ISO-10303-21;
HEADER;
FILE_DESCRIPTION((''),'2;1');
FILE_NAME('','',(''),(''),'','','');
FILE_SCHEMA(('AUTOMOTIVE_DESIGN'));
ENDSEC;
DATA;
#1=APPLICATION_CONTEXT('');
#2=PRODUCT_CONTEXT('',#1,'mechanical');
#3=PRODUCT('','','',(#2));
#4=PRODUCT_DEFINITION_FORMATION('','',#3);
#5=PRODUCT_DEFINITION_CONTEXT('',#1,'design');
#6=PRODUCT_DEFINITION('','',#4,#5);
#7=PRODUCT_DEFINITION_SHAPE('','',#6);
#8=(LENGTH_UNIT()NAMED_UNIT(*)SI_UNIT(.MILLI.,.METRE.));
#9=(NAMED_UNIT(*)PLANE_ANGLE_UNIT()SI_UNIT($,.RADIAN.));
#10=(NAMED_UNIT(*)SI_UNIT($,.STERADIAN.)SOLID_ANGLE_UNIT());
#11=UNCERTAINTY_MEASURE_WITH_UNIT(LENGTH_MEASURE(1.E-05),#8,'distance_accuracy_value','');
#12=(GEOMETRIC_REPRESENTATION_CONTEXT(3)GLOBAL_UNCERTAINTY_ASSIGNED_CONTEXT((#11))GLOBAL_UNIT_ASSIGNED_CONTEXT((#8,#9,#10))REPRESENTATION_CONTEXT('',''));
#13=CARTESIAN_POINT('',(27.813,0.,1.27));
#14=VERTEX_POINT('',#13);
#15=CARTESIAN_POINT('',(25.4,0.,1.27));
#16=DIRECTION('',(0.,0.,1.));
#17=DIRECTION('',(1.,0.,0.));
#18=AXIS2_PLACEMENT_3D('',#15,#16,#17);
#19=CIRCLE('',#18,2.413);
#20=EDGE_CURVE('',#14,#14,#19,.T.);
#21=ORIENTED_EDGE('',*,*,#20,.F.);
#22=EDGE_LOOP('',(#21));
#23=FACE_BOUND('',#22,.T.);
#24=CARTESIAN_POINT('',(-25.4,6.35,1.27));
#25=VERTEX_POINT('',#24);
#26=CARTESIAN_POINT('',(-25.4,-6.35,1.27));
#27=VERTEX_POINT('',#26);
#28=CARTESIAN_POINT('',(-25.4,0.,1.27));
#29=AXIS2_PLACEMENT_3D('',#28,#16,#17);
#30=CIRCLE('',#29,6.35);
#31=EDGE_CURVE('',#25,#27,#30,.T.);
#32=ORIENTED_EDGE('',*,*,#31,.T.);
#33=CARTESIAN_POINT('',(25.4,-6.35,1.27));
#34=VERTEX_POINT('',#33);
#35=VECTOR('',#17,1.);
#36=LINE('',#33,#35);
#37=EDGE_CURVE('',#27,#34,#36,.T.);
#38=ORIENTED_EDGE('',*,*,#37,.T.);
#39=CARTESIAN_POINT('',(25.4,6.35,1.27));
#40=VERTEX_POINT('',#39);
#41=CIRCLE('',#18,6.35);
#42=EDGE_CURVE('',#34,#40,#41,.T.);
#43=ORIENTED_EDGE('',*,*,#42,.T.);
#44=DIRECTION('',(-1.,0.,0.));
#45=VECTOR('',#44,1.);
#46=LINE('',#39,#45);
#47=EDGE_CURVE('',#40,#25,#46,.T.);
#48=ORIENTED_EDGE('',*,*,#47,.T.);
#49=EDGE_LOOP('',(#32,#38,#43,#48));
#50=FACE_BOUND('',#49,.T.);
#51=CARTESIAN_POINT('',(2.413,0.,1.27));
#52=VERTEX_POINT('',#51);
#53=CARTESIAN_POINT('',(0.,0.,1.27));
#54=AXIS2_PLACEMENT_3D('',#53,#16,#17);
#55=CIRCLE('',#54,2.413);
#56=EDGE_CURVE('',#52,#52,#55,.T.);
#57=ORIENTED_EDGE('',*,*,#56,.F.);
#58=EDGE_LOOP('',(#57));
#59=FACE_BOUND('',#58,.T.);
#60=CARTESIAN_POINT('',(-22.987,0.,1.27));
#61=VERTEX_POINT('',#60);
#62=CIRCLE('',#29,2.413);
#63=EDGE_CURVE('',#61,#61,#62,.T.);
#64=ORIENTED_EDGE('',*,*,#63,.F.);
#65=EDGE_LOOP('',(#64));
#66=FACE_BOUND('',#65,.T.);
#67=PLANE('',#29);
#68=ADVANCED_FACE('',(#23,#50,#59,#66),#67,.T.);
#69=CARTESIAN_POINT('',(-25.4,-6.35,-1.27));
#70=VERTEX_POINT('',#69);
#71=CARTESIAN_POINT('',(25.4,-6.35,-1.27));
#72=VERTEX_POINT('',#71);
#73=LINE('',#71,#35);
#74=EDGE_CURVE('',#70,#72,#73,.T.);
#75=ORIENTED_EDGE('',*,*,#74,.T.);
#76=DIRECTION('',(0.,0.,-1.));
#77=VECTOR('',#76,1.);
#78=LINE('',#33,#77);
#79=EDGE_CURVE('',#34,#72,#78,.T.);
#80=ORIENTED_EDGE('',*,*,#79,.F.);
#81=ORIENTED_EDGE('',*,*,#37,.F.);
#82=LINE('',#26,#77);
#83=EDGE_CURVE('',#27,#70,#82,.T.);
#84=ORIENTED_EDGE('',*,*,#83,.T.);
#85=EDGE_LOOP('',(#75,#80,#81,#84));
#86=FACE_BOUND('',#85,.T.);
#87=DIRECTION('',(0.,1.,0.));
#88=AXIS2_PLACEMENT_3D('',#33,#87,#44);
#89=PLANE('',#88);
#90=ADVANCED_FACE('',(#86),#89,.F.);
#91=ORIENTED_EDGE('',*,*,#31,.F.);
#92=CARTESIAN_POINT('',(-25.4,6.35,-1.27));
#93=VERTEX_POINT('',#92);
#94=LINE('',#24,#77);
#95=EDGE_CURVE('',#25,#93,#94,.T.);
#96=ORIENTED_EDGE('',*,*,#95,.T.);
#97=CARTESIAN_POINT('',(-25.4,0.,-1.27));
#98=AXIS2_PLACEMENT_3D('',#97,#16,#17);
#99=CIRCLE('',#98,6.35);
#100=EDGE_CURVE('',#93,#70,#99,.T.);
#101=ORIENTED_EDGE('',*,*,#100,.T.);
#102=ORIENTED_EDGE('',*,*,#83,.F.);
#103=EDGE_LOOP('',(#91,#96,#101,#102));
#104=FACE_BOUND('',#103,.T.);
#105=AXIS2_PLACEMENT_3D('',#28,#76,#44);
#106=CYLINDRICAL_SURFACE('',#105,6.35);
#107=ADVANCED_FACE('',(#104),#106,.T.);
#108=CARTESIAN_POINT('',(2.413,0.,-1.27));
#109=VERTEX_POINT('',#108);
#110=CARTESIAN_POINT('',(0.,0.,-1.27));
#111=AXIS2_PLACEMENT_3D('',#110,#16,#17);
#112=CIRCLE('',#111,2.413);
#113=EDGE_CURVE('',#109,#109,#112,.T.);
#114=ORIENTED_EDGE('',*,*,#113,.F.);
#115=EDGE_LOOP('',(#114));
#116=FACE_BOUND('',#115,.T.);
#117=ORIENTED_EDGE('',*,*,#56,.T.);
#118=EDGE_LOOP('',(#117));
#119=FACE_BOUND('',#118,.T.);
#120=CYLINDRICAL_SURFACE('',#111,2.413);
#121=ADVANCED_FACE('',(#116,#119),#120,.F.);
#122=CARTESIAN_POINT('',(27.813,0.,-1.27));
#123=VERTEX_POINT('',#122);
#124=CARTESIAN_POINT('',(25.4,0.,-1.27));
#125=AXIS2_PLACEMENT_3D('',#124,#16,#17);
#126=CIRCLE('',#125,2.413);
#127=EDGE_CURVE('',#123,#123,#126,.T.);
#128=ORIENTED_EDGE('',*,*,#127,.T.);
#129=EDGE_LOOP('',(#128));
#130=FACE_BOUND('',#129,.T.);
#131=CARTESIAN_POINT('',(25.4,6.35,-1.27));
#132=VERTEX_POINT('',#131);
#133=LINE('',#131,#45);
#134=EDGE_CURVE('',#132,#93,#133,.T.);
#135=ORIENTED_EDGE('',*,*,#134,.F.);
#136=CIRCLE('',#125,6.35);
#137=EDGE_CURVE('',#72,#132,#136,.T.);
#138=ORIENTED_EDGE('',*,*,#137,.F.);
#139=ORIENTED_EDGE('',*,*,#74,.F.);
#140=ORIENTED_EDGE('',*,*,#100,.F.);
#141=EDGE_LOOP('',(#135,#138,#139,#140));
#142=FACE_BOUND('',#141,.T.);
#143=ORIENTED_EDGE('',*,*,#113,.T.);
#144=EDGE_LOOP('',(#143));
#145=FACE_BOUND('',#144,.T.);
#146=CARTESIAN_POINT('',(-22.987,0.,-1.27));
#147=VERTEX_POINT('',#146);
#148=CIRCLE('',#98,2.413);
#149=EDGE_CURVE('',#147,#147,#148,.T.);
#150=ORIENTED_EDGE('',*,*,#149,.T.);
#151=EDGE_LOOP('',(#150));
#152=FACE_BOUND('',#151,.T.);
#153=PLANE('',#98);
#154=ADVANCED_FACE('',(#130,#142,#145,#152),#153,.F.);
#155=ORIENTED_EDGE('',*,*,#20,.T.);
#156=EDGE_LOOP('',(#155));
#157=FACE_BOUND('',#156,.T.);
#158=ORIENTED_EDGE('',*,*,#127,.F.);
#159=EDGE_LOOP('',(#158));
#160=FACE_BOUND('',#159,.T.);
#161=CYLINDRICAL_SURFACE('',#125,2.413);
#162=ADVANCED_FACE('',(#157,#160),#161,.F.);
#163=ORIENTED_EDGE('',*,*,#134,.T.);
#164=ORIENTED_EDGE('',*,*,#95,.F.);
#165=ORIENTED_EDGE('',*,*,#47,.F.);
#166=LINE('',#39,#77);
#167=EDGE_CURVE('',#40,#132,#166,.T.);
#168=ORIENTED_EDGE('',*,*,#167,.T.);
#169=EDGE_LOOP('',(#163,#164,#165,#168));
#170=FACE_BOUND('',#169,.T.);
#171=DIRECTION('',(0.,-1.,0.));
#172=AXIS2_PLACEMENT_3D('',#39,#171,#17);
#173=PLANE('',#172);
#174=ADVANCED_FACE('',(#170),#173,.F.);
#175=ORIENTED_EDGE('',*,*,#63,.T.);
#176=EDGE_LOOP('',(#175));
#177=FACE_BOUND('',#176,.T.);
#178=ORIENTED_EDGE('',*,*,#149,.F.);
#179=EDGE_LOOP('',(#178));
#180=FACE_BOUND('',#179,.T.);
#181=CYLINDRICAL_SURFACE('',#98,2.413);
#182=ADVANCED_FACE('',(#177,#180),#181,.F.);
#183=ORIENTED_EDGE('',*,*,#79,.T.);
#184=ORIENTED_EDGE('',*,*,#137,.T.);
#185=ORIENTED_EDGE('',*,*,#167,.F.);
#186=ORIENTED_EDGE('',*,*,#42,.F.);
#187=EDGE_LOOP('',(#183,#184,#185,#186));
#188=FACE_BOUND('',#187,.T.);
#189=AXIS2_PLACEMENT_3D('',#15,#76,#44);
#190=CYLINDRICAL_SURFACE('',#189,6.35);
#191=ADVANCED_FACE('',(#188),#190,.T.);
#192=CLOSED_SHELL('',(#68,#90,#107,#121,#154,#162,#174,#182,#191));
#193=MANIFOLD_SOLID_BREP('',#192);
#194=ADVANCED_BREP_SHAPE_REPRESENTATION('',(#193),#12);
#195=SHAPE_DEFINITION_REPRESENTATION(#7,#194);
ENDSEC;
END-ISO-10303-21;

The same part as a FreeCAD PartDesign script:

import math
import FreeCAD as App
import Part
import Sketcher

V = App.Vector
Q = App.Units.Quantity

doc = App.newDocument("Part")
body = doc.addObject("PartDesign::Body", "Body")

sketch1 = body.newObject("Sketcher::SketchObject", "Sketch")
sketch1.AttachmentSupport = (doc.getObject("XY_Plane"), [""])
sketch1.MapMode = "FlatFace"
sketch1.addGeometry([
    Part.LineSegment(V(-25, -6, 0), V(25, -6, 0)),
    Part.ArcOfCircle(Part.Circle(V(25, 0, 0), V(0, 0, 1), 6), math.radians(-90), math.radians(90)),
    Part.LineSegment(V(25, 6, 0), V(-25, 6, 0)),
    Part.ArcOfCircle(Part.Circle(V(-25, 0, 0), V(0, 0, 1), 6), math.radians(90), math.radians(270)),
], False)
sketch1.addConstraint([
    Sketcher.Constraint("Tangent", 0, 2, 1, 1),
    Sketcher.Constraint("Tangent", 1, 2, 2, 1),
    Sketcher.Constraint("Tangent", 2, 2, 3, 1),
    Sketcher.Constraint("Tangent", 3, 2, 0, 1),
    Sketcher.Constraint("Horizontal", 0),
    Sketcher.Constraint("Horizontal", 2),
    Sketcher.Constraint("Symmetric", 1, 3, 3, 3, -1, 1),
    Sketcher.Constraint("DistanceX", 0, 1, 0, 2, Q("2 in")),
    Sketcher.Constraint("Radius", 1, Q("0.25 in")),
])
pad1 = body.newObject("PartDesign::Pad", "Pad")
pad1.Profile = sketch1
pad1.Length = Q("0.1 in")
pad1.Midplane = True

sketch2 = body.newObject("Sketcher::SketchObject", "Sketch001")
sketch2.AttachmentSupport = (doc.getObject("XY_Plane"), [""])
sketch2.MapMode = "FlatFace"
sketch2.AttachmentOffset = App.Placement(V(0, 0, 0.05 * 25.4), App.Rotation())
sketch2.addGeometry(Part.Circle(V(-25.4, 0, 0), V(0, 0, 1), 2.4), False)
sketch2.addConstraint([
    Sketcher.Constraint("PointOnObject", 0, 3, -1),
    Sketcher.Constraint("Diameter", 0, Q("0.19 in")),
    Sketcher.Constraint("DistanceX", 0, 3, -1, 1, Q("1 in")),
])
pocket1 = body.newObject("PartDesign::Pocket", "Pocket")
pocket1.Profile = sketch2
pocket1.Type = "ThroughAll"
doc.recompute()

linearpattern = body.newObject("PartDesign::LinearPattern", "LinearPattern")
linearpattern.Originals = [pocket1]
linearpattern.Direction = (doc.getObject("X_Axis"), [""])
linearpattern.Mode = "offset"
linearpattern.Offset = Q("1 in")
linearpattern.Occurrences = 3
body.Tip = linearpattern

doc.recompute()
